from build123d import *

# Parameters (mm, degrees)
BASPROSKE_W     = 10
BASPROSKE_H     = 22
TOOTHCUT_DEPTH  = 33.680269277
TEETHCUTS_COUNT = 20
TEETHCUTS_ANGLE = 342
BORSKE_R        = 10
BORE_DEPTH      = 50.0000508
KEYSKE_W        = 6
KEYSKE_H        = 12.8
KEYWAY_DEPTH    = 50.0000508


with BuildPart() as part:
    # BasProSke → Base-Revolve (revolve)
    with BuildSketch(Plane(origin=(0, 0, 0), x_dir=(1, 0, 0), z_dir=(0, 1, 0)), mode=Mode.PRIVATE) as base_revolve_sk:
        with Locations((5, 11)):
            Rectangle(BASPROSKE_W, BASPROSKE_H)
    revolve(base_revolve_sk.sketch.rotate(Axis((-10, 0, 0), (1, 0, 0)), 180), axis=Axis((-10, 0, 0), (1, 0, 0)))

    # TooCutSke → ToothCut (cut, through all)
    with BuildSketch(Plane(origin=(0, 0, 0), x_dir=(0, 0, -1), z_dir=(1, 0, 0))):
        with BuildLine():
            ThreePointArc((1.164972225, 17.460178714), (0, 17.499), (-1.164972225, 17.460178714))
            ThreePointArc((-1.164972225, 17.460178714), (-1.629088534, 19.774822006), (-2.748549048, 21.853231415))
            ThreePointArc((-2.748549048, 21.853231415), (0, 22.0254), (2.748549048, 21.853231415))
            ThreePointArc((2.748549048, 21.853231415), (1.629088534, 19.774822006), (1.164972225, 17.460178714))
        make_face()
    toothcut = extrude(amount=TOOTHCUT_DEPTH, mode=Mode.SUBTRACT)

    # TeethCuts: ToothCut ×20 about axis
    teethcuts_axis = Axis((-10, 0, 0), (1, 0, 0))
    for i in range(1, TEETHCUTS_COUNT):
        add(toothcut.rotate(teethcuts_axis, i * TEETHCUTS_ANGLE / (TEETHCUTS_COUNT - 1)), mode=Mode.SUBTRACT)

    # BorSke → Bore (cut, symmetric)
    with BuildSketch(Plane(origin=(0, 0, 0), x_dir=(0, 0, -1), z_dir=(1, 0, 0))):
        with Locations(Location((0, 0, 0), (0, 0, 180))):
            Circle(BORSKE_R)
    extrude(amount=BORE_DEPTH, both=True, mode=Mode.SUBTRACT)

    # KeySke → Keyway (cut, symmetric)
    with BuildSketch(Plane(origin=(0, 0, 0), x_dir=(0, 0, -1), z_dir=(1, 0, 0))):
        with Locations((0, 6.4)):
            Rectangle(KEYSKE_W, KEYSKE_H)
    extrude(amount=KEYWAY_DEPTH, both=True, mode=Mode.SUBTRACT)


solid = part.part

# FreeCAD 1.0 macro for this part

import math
import FreeCAD as App
import Part
import Sketcher
Q = App.Units.Quantity

doc = App.newDocument("Part")
body = doc.addObject("PartDesign::Body", "Body")

sketch1 = body.newObject("Sketcher::SketchObject", "Sketch")
sketch1.AttachmentSupport = (doc.getObject("XZ_Plane"), [""])
sketch1.MapMode = "FlatFace"
sketch1.addGeometry(Part.LineSegment(App.Vector(0, -22, 0), App.Vector(0, 0, 0)), False)
sketch1.addGeometry(Part.LineSegment(App.Vector(0, 0, 0), App.Vector(10, 0, 0)), False)
sketch1.addGeometry(Part.LineSegment(App.Vector(10, 0, 0), App.Vector(10, -22, 0)), False)
sketch1.addGeometry(Part.LineSegment(App.Vector(10, -22, 0), App.Vector(0, -22, 0)), False)
sketch1.addConstraint(Sketcher.Constraint("Coincident", 0, 2, 1, 1))
sketch1.addConstraint(Sketcher.Constraint("Coincident", 1, 2, 2, 1))
sketch1.addConstraint(Sketcher.Constraint("Coincident", 2, 2, 3, 1))
sketch1.addConstraint(Sketcher.Constraint("Coincident", 3, 2, 0, 1))
sketch1.addConstraint(Sketcher.Constraint("Vertical", 0))
sketch1.addConstraint(Sketcher.Constraint("Horizontal", 1))
sketch1.addConstraint(Sketcher.Constraint("Vertical", 2))
sketch1.addConstraint(Sketcher.Constraint("Horizontal", 3))
sketch1.addConstraint(Sketcher.Constraint("Coincident", 0, 2, -1, 1))
sketch1.addConstraint(Sketcher.Constraint("DistanceX", 1, 1, 1, 2, Q("10 mm")))
sketch1.addConstraint(Sketcher.Constraint("DistanceY", 0, 1, 0, 2, Q("22 mm")))
revolution = body.newObject("PartDesign::Revolution", "Revolution")
revolution.Profile = sketch1
revolution.ReferenceAxis = (sketch1, ["H_Axis"])
revolution.Angle = 360

sketch2 = body.newObject("Sketcher::SketchObject", "Sketch001")
sketch2.AttachmentSupport = (doc.getObject("YZ_Plane"), [""])
sketch2.MapMode = "FlatFace"
sketch2.addGeometry(Part.ArcOfCircle(Part.Circle(App.Vector(0, 0, 0), App.Vector(0, 0, 1), 17.5), math.radians(-3.82), math.radians(3.82)), False)
sketch2.addGeometry(Part.ArcOfCircle(Part.Circle(App.Vector(17.1, -9.2, 0), App.Vector(0, 0, 1), 8), math.radians(53), math.radians(87)), False)
sketch2.addGeometry(Part.ArcOfCircle(Part.Circle(App.Vector(0, 0, 0), App.Vector(0, 0, 1), 22), math.radians(-7.17), math.radians(7.17)), False)
sketch2.addGeometry(Part.ArcOfCircle(Part.Circle(App.Vector(17.1, 9.2, 0), App.Vector(0, 0, 1), 8), math.radians(-87), math.radians(-53)), False)
sketch2.addConstraint(Sketcher.Constraint("Coincident", 0, 1, 1, 2))
sketch2.addConstraint(Sketcher.Constraint("Coincident", 1, 1, 2, 1))
sketch2.addConstraint(Sketcher.Constraint("Coincident", 2, 2, 3, 2))
sketch2.addConstraint(Sketcher.Constraint("Coincident", 3, 1, 0, 2))
sketch2.addConstraint(Sketcher.Constraint("Coincident", 0, 3, -1, 1))
sketch2.addConstraint(Sketcher.Constraint("Coincident", 2, 3, -1, 1))
sketch2.addConstraint(Sketcher.Constraint("Equal", 1, 3))
sketch2.addConstraint(Sketcher.Constraint("Symmetric", 1, 3, 3, 3, -1))
sketch2.addConstraint(Sketcher.Constraint("Radius", 1, Q("8 mm")))
sketch2.addConstraint(Sketcher.Constraint("Radius", 0, Q("17.499 mm")))
sketch2.addConstraint(Sketcher.Constraint("Radius", 2, Q("22.0254 mm")))
sketch2.addConstraint(Sketcher.Constraint("DistanceY", 1, 1, 3, 3, Q("11.903602 mm")))
sketch2.addConstraint(Sketcher.Constraint("DistanceY", 1, 1, 2, 2, Q("5.497098 mm")))
pocket1 = body.newObject("PartDesign::Pocket", "Pocket")
pocket1.Profile = sketch2
pocket1.Type = "ThroughAll"
pocket1.Reversed = True
doc.recompute()

polarpattern = body.newObject("PartDesign::PolarPattern", "PolarPattern")
polarpattern.Originals = [pocket1]
polarpattern.Axis = (doc.getObject("X_Axis"), [""])
polarpattern.Angle = 360
polarpattern.Occurrences = 20
body.Tip = polarpattern

sketch3 = body.newObject("Sketcher::SketchObject", "Sketch002")
sketch3.AttachmentSupport = (doc.getObject("YZ_Plane"), [""])
sketch3.MapMode = "FlatFace"
sketch3.addGeometry(Part.Circle(App.Vector(0, 0, 0), App.Vector(0, 0, 1), 10), False)
sketch3.addConstraint(Sketcher.Constraint("Coincident", 0, 3, -1, 1))
sketch3.addConstraint(Sketcher.Constraint("Diameter", 0, Q("20 mm")))
pocket2 = body.newObject("PartDesign::Pocket", "Pocket001")
pocket2.Profile = sketch3
pocket2.Length = 100.000102
pocket2.Midplane = True

sketch4 = body.newObject("Sketcher::SketchObject", "Sketch003")
sketch4.AttachmentSupport = (doc.getObject("YZ_Plane"), [""])
sketch4.MapMode = "FlatFace"
sketch4.addGeometry(Part.LineSegment(App.Vector(13, 3, 0), App.Vector(0, 3, 0)), False)
sketch4.addGeometry(Part.LineSegment(App.Vector(0, 3, 0), App.Vector(0, -3, 0)), False)
sketch4.addGeometry(Part.LineSegment(App.Vector(0, -3, 0), App.Vector(13, -3, 0)), False)
sketch4.addGeometry(Part.LineSegment(App.Vector(13, -3, 0), App.Vector(13, 3, 0)), False)
sketch4.addConstraint(Sketcher.Constraint("Coincident", 0, 2, 1, 1))
sketch4.addConstraint(Sketcher.Constraint("Coincident", 1, 2, 2, 1))
sketch4.addConstraint(Sketcher.Constraint("Coincident", 2, 2, 3, 1))
sketch4.addConstraint(Sketcher.Constraint("Coincident", 3, 2, 0, 1))
sketch4.addConstraint(Sketcher.Constraint("Horizontal", 0))
sketch4.addConstraint(Sketcher.Constraint("Vertical", 1))
sketch4.addConstraint(Sketcher.Constraint("Horizontal", 2))
sketch4.addConstraint(Sketcher.Constraint("Vertical", 3))
sketch4.addConstraint(Sketcher.Constraint("Symmetric", 0, 2, 1, 2, -1, 1))
sketch4.addConstraint(Sketcher.Constraint("DistanceY", 1, 2, 1, 1, Q("6 mm")))
sketch4.addConstraint(Sketcher.Constraint("DistanceX", 0, 2, 0, 1, Q("12.8 mm")))
pocket3 = body.newObject("PartDesign::Pocket", "Pocket002")
pocket3.Profile = sketch4
pocket3.Length = 100.000102
pocket3.Midplane = True

doc.recompute()
